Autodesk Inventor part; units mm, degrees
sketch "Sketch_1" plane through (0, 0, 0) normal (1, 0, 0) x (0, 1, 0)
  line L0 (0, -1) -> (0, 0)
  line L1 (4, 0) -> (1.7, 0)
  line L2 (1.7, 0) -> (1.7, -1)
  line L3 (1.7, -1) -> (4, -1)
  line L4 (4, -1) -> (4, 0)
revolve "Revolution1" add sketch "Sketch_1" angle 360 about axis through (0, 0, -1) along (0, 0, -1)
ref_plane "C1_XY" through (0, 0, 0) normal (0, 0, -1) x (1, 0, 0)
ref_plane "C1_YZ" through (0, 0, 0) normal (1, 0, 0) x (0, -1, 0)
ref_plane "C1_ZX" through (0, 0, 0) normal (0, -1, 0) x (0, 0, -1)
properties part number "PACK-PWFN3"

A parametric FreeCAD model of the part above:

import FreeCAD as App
import Part
import Sketcher
Q = App.Units.Quantity

doc = App.newDocument("Part")
body = doc.addObject("PartDesign::Body", "Body")

# Sketch on YZ plane
sketch1 = body.newObject("Sketcher::SketchObject", "Sketch")
sketch1.AttachmentSupport = (doc.getObject("YZ_Plane"), [""])
sketch1.MapMode = "FlatFace"
sketch1.addGeometry(Part.LineSegment(App.Vector(4, -1, 0), App.Vector(4, 0, 0)), False)
sketch1.addGeometry(Part.LineSegment(App.Vector(4, 0, 0), App.Vector(1.7, 0, 0)), False)
sketch1.addGeometry(Part.LineSegment(App.Vector(1.7, 0, 0), App.Vector(1.7, -1, 0)), False)
sketch1.addGeometry(Part.LineSegment(App.Vector(1.7, -1, 0), App.Vector(4, -1, 0)), False)
sketch1.addConstraint(Sketcher.Constraint("Coincident", 0, 2, 1, 1))
sketch1.addConstraint(Sketcher.Constraint("Coincident", 1, 2, 2, 1))
sketch1.addConstraint(Sketcher.Constraint("Coincident", 2, 2, 3, 1))
sketch1.addConstraint(Sketcher.Constraint("Coincident", 3, 2, 0, 1))
sketch1.addConstraint(Sketcher.Constraint("Vertical", 0))
sketch1.addConstraint(Sketcher.Constraint("Horizontal", 1))
sketch1.addConstraint(Sketcher.Constraint("Vertical", 2))
sketch1.addConstraint(Sketcher.Constraint("Horizontal", 3))
sketch1.addConstraint(Sketcher.Constraint("PointOnObject", 0, 2, -1))
sketch1.addConstraint(Sketcher.Constraint("DistanceY", 0, 1, 0, 2, Q("1 mm")))
sketch1.addConstraint(Sketcher.Constraint("DistanceX", 1, 2, 1, 1, Q("2.3 mm")))
sketch1.addConstraint(Sketcher.Constraint("DistanceX", -1, 1, 0, 2, Q("4 mm")))
revolution = body.newObject("PartDesign::Revolution", "Revolution")
revolution.Profile = sketch1
revolution.ReferenceAxis = (sketch1, ["V_Axis"])
revolution.Angle = 360

doc.recompute()
